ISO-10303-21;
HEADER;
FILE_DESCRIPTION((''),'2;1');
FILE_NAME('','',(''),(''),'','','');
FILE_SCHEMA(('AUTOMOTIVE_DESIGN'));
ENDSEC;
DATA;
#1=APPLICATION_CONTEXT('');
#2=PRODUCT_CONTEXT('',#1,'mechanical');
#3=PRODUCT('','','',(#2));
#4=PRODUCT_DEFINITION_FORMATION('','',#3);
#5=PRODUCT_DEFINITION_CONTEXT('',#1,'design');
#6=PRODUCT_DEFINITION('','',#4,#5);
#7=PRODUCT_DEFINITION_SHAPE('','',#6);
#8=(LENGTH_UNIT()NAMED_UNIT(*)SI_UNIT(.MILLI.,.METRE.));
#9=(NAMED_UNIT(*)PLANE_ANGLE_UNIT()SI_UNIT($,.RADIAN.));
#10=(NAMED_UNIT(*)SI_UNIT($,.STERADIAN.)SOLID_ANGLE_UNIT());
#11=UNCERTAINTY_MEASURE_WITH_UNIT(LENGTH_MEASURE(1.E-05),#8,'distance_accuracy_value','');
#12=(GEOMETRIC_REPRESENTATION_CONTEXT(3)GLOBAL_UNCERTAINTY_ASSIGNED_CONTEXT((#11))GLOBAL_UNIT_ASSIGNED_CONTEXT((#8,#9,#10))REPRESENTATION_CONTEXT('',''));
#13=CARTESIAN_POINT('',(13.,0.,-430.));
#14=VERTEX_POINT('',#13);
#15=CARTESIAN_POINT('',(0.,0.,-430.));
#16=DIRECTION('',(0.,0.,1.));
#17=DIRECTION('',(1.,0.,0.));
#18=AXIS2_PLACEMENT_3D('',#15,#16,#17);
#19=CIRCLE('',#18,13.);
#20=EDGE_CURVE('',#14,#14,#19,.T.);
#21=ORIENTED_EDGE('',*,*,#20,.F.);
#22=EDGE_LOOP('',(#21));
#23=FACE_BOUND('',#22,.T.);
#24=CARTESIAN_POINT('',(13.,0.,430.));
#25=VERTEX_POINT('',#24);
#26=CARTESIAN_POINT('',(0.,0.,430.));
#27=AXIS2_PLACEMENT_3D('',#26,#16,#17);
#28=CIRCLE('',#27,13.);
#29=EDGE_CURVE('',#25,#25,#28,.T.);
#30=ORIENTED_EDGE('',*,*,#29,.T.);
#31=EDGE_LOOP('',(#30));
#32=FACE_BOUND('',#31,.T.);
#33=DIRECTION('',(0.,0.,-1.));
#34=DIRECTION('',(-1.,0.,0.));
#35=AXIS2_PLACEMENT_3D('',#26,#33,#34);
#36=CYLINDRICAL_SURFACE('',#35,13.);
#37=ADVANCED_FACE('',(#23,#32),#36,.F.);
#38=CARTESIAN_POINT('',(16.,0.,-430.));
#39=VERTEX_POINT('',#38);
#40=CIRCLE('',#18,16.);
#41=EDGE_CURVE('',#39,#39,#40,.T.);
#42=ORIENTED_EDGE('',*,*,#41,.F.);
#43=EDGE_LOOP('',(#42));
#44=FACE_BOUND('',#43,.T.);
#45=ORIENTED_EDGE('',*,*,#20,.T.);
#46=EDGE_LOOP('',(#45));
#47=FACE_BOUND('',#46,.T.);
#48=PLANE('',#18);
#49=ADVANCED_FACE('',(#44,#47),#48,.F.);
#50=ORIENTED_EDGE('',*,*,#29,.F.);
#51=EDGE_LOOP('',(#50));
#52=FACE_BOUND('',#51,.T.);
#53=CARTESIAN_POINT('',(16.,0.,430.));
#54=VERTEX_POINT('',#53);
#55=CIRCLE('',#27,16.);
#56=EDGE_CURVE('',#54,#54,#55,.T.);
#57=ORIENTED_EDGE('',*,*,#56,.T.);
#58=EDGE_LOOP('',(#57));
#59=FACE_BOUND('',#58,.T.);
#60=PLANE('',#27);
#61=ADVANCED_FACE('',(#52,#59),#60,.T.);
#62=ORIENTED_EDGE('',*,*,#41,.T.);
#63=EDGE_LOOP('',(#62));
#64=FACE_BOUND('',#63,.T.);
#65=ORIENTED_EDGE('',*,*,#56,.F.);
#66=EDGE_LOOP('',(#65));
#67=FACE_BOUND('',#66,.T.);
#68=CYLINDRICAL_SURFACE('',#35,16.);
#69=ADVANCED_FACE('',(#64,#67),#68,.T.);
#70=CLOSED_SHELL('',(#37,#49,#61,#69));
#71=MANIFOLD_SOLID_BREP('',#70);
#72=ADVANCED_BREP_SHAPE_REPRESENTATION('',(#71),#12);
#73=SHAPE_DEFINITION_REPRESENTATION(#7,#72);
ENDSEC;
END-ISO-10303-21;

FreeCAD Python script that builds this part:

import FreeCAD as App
import Part
import Sketcher
Q = App.Units.Quantity


def faces_at(feature, points):
    """Names of the faces that lie closest to the given points."""
    faces = feature.Shape.Faces
    near = lambda p: min(range(len(faces)), key=lambda i: faces[i].distToShape(Part.Vertex(*p))[0])
    return sorted({f"Face{near(p) + 1}" for p in points})

doc = App.newDocument("Part")
body = doc.addObject("PartDesign::Body", "Body")

sketch1 = doc.addObject("Sketcher::SketchObject", "Sketch")
body.addObject(sketch1)
sketch1.AttachmentSupport = (doc.XY_Plane, [""])
sketch1.MapMode = "FlatFace"
sketch1.addGeometry(Part.Circle(App.Vector(0, 0, 0), App.Vector(0, 0, 1), 16), False)
sketch1.addConstraint(Sketcher.Constraint("Coincident", 0, 3, -1, 1))
sketch1.addConstraint(Sketcher.Constraint("Diameter", 0, Q("32 mm")))
pad1 = doc.addObject("PartDesign::Pad", "Pad")
body.addObject(pad1)
pad1.Profile = sketch1
pad1.Length = 860
pad1.Midplane = True
doc.recompute()

thickness = doc.addObject("PartDesign::Thickness", "Thickness")
body.addObject(thickness)
thickness.Base = (pad1, faces_at(pad1, [(0, 0, 430), (0, 0, -430)]))
thickness.Value = 3
thickness.Reversed = True
thickness.Join = "Intersection"

doc.recompute()
